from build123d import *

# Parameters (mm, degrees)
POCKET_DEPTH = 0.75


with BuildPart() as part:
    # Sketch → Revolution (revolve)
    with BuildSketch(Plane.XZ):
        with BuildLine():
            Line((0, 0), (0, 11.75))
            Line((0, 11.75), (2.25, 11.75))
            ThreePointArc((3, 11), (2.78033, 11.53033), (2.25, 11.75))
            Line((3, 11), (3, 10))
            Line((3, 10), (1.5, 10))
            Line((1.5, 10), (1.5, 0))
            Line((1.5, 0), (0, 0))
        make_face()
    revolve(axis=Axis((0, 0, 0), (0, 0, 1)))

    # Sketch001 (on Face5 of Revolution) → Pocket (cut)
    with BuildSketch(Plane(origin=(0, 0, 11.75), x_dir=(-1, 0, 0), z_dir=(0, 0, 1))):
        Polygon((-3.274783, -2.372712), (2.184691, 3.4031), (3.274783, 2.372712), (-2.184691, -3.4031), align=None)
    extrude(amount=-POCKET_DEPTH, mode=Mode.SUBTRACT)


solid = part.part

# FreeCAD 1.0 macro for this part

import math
import FreeCAD as App
import Part
import Sketcher

V = App.Vector


def add_polygon(sketch, points):
    """Adds a closed chain of lines whose ends are joined by coincident constraints."""
    first, n = sketch.GeometryCount, len(points)
    for a, b in zip(points, points[1:] + points[:1]):
        sketch.addGeometry(Part.LineSegment(App.Vector(*a, 0), App.Vector(*b, 0)), False)
    for i in range(n):
        sketch.addConstraint(Sketcher.Constraint("Coincident", first + i, 2, first + (i + 1) % n, 1))

doc = App.newDocument("Part")
body = doc.addObject("PartDesign::Body", "Body")

# Sketch on XZ plane
sketch1 = doc.addObject("Sketcher::SketchObject", "Sketch")
body.addObject(sketch1)
sketch1.AttachmentSupport = (doc.XZ_Plane, [""])
sketch1.MapMode = "FlatFace"
sketch1.addGeometry(Part.LineSegment(V(0, 11.8, 0), V(0, 0, 0)), False)
sketch1.addGeometry(Part.LineSegment(V(0, 0, 0), V(1.5, 0, 0)), False)
sketch1.addGeometry(Part.LineSegment(V(1.5, 0, 0), V(1.5, 10, 0)), False)
sketch1.addGeometry(Part.LineSegment(V(1.5, 10, 0), V(3, 10, 0)), False)
sketch1.addGeometry(Part.LineSegment(V(3, 10, 0), V(3, 11, 0)), False)
sketch1.addGeometry(Part.ArcOfCircle(Part.Circle(V(2.2, 11, 0), V(0, 0, 1), 0.8), math.radians(0), math.radians(90)), False)
sketch1.addGeometry(Part.LineSegment(V(2.2, 11.8, 0), V(0, 11.8, 0)), False)
sketch1.addConstraint(Sketcher.Constraint("Coincident", 0, 2, 1, 1))
sketch1.addConstraint(Sketcher.Constraint("Coincident", 1, 2, 2, 1))
sketch1.addConstraint(Sketcher.Constraint("Coincident", 2, 2, 3, 1))
sketch1.addConstraint(Sketcher.Constraint("Coincident", 3, 2, 4, 1))
sketch1.addConstraint(Sketcher.Constraint("Tangent", 4, 2, 5, 1))
sketch1.addConstraint(Sketcher.Constraint("Tangent", 5, 2, 6, 1))
sketch1.addConstraint(Sketcher.Constraint("Coincident", 6, 2, 0, 1))
sketch1.addConstraint(Sketcher.Constraint("Vertical", 0))
sketch1.addConstraint(Sketcher.Constraint("Horizontal", 1))
sketch1.addConstraint(Sketcher.Constraint("Vertical", 2))
sketch1.addConstraint(Sketcher.Constraint("Horizontal", 3))
sketch1.addConstraint(Sketcher.Constraint("Vertical", 4))
sketch1.addConstraint(Sketcher.Constraint("Horizontal", 6))
sketch1.addConstraint(Sketcher.Constraint("Coincident", 0, 2, -1, 1))
sketch1.addConstraint(Sketcher.Constraint("Equal", 1, 3))
sketch1.addConstraint(Sketcher.Constraint("DistanceY", 2, 1, 2, 2, 10.0))
sketch1.addConstraint(Sketcher.Constraint("DistanceY", 4, 1, 4, 2, 1.0))
sketch1.addConstraint(Sketcher.Constraint("Radius", 5, 0.75))
sketch1.addConstraint(Sketcher.Constraint("DistanceX", 1, 1, 1, 2, 1.5))
revolution = doc.addObject("PartDesign::Revolution", "Revolution")
body.addObject(revolution)
revolution.Profile = sketch1
revolution.ReferenceAxis = (sketch1, ["V_Axis"])
revolution.Angle = 360

# Sketch on XY plane
sketch2 = doc.addObject("Sketcher::SketchObject", "Sketch001")
body.addObject(sketch2)
sketch2.AttachmentSupport = (doc.XY_Plane, [""])
sketch2.MapMode = "FlatFace"
sketch2.AttachmentOffset = App.Placement(V(0, 0, 11.75), App.Rotation())
add_polygon(sketch2, [(-2.2, -3.4), (3.3, 2.4), (2.2, 3.4), (-3.3, -2.4)])  # lines 0-3
sketch2.addConstraint(Sketcher.Constraint("Symmetric", 0, 2, 2, 2, -1, 1))
sketch2.addConstraint(Sketcher.Constraint("Symmetric", 1, 2, 3, 2, -1, 1))
sketch2.addConstraint(Sketcher.Constraint("Perpendicular", 0, 1))
sketch2.addConstraint(Sketcher.Constraint("Distance", 1, 1.5))
sketch2.addConstraint(Sketcher.Constraint("DistanceY", -1, 1, 1, 2, 3.4031))
sketch2.addConstraint(Sketcher.Constraint("DistanceY", -1, 1, 0, 2, 2.372712))
pocket1 = doc.addObject("PartDesign::Pocket", "Pocket")
body.addObject(pocket1)
pocket1.Profile = sketch2
pocket1.Length = 0.75

doc.recompute()
